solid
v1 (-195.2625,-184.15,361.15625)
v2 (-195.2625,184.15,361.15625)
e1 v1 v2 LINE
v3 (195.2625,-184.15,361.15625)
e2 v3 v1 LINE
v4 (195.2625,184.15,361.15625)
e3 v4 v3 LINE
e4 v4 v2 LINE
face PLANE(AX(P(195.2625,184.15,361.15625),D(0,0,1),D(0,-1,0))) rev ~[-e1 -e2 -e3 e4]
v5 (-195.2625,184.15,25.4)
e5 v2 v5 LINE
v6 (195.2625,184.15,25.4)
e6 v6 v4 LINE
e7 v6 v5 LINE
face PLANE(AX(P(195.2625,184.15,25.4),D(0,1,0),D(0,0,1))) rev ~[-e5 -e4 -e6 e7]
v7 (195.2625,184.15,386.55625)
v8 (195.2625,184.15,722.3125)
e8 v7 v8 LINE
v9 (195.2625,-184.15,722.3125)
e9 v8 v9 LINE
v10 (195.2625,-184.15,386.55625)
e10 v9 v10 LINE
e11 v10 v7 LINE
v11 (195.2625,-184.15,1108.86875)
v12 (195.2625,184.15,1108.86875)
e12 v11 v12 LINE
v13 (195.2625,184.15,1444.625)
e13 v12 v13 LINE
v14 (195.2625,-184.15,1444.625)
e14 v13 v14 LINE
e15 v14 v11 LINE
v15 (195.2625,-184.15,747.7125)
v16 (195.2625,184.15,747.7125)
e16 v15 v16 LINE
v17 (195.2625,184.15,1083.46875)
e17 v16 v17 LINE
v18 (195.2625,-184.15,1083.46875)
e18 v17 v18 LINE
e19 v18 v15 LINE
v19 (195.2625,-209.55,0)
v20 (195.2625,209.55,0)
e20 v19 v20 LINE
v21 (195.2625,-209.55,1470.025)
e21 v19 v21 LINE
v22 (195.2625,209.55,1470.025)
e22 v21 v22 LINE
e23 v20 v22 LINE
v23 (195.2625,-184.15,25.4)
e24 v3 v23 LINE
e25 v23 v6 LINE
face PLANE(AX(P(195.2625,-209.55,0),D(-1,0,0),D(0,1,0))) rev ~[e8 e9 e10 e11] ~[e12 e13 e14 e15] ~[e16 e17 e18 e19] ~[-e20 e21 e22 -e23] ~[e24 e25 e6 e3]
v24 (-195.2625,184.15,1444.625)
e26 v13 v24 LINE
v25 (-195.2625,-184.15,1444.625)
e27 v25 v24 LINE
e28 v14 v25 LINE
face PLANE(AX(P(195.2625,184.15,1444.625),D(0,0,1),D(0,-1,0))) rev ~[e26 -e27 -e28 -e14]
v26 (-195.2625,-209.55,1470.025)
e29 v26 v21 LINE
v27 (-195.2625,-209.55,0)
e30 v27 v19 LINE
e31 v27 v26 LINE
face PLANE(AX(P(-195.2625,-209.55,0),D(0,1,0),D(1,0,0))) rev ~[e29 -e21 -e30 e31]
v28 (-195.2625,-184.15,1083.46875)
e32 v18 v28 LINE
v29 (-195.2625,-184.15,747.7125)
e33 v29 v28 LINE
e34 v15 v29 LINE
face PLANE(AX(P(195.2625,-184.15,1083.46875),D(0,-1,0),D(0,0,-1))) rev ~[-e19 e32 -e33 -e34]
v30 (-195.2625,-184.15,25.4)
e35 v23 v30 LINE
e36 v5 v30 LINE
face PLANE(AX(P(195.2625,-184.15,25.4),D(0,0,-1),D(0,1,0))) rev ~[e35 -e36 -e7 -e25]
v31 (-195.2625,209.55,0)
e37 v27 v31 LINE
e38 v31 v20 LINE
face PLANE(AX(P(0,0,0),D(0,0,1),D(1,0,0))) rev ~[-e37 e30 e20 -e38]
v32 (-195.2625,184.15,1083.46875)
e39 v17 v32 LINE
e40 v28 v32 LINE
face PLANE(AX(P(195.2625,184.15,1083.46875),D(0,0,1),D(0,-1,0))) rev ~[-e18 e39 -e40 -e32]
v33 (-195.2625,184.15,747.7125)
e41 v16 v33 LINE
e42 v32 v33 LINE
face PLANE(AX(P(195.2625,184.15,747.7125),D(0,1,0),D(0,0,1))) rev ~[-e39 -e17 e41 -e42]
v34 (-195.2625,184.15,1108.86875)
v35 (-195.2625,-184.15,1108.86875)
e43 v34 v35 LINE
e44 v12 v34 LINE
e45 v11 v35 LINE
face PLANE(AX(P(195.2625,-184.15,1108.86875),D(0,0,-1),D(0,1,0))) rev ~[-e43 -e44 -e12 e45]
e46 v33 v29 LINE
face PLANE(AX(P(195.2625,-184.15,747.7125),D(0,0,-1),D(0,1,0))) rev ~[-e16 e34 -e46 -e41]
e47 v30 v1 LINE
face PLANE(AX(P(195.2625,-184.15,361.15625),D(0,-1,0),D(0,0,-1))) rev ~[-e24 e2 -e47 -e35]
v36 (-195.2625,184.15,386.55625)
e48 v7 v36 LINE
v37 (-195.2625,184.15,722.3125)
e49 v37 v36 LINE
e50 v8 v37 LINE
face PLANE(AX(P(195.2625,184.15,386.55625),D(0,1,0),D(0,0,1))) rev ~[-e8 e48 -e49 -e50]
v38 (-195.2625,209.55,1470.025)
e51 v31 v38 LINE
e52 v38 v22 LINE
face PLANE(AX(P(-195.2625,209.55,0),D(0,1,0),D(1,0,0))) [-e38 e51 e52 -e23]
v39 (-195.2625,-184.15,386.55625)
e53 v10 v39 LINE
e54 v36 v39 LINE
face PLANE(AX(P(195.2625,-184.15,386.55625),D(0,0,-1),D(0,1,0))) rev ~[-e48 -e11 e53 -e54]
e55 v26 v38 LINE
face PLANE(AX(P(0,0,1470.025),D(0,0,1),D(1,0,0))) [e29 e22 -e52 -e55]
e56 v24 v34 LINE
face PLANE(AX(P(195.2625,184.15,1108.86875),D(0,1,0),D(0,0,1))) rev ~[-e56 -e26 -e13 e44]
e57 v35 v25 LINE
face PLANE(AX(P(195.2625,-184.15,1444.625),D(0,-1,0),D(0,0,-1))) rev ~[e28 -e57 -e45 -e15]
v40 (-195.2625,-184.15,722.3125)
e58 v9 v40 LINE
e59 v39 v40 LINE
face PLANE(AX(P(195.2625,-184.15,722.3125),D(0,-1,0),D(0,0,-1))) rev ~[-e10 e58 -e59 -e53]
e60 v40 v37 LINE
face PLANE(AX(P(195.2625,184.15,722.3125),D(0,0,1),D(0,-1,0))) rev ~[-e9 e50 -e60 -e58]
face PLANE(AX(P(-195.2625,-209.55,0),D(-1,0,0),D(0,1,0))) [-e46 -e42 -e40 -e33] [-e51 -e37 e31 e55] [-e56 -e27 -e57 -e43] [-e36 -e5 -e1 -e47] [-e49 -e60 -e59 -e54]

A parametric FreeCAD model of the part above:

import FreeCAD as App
import Part
import Sketcher
Q = App.Units.Quantity


def add_polygon(sketch, points):
    """Adds a closed chain of lines whose ends are joined by coincident constraints."""
    first, n = sketch.GeometryCount, len(points)
    for a, b in zip(points, points[1:] + points[:1]):
        sketch.addGeometry(Part.LineSegment(App.Vector(*a, 0), App.Vector(*b, 0)), False)
    for i in range(n):
        sketch.addConstraint(Sketcher.Constraint("Coincident", first + i, 2, first + (i + 1) % n, 1))

doc = App.newDocument("Part")
body = doc.addObject("PartDesign::Body", "Body")

sketch1 = doc.addObject("Sketcher::SketchObject", "Sketch")
body.addObject(sketch1)
sketch1.AttachmentSupport = (doc.XY_Plane, [""])
sketch1.MapMode = "FlatFace"
add_polygon(sketch1, [(-195.2625, 209.55), (-195.2625, -209.55), (195.2625, -209.55), (195.2625, 209.55)])
sketch1.addConstraint(Sketcher.Constraint("Vertical", 0))
sketch1.addConstraint(Sketcher.Constraint("Horizontal", 1))
sketch1.addConstraint(Sketcher.Constraint("Vertical", 2))
sketch1.addConstraint(Sketcher.Constraint("Horizontal", 3))
sketch1.addConstraint(Sketcher.Constraint("Symmetric", 0, 2, 2, 2, -1, 1))
sketch1.addConstraint(Sketcher.Constraint("DistanceY", 0, 2, 0, 1, Q("16.5 in")))
sketch1.addConstraint(Sketcher.Constraint("DistanceX", 1, 1, 1, 2, Q("15.375 in")))
pad1 = doc.addObject("PartDesign::Pad", "Pad")
body.addObject(pad1)
pad1.Profile = sketch1
pad1.Length = Q("57.875 in")

sketch2 = doc.addObject("Sketcher::SketchObject", "Sketch001")
body.addObject(sketch2)
sketch2.AttachmentSupport = (doc.YZ_Plane, [""])
sketch2.MapMode = "FlatFace"
sketch2.AttachmentOffset = App.Placement(App.Vector(0, 0, 7.6875 * 25.4), App.Rotation())
add_polygon(sketch2, [(-184.15, 1108.86875), (184.15, 1108.86875), (184.15, 1444.625), (-184.15, 1444.625)])
add_polygon(sketch2, [(-184.15, 747.7125), (184.15, 747.7125), (184.15, 1083.46875), (-184.15, 1083.46875)])
add_polygon(sketch2, [(-184.15, 386.55625), (184.15, 386.55625), (184.15, 722.3125), (-184.15, 722.3125)])
add_polygon(sketch2, [(184.15, 25.4), (184.15, 361.15625), (-184.15, 361.15625), (-184.15, 25.4)])
sketch2.addConstraint(Sketcher.Constraint("Horizontal", 0))
sketch2.addConstraint(Sketcher.Constraint("Vertical", 1))
sketch2.addConstraint(Sketcher.Constraint("Horizontal", 2))
sketch2.addConstraint(Sketcher.Constraint("Vertical", 3))
sketch2.addConstraint(Sketcher.Constraint("Horizontal", 4))
sketch2.addConstraint(Sketcher.Constraint("Vertical", 5))
sketch2.addConstraint(Sketcher.Constraint("Horizontal", 6))
sketch2.addConstraint(Sketcher.Constraint("Vertical", 7))
sketch2.addConstraint(Sketcher.Constraint("Horizontal", 8))
sketch2.addConstraint(Sketcher.Constraint("Vertical", 9))
sketch2.addConstraint(Sketcher.Constraint("Horizontal", 10))
sketch2.addConstraint(Sketcher.Constraint("Vertical", 11))
sketch2.addConstraint(Sketcher.Constraint("Vertical", 12))
sketch2.addConstraint(Sketcher.Constraint("Horizontal", 13))
sketch2.addConstraint(Sketcher.Constraint("Vertical", 14))
sketch2.addConstraint(Sketcher.Constraint("Horizontal", 15))
sketch2.addConstraint(Sketcher.Constraint("Vertical", 1, 2, 4, 2))
sketch2.addConstraint(Sketcher.Constraint("Vertical", 3, 2, 6, 2))
sketch2.addConstraint(Sketcher.Constraint("Vertical", 5, 2, 8, 2))
sketch2.addConstraint(Sketcher.Constraint("Vertical", 7, 2, 10, 2))
sketch2.addConstraint(Sketcher.Constraint("Vertical", 9, 2, 12, 2))
sketch2.addConstraint(Sketcher.Constraint("Vertical", 11, 2, 13, 2))
sketch2.addConstraint(Sketcher.Constraint("Equal", 3, 5))
sketch2.addConstraint(Sketcher.Constraint("Equal", 7, 9))
sketch2.addConstraint(Sketcher.Constraint("Equal", 11, 12))
sketch2.addConstraint(Sketcher.Constraint("DistanceX", 0, 1, 0, 2, Q("14.5 in")))
sketch2.addConstraint(Sketcher.Constraint("DistanceY", -1, 1, 14, 2, Q("1 in")))
sketch2.addConstraint(Sketcher.Constraint("DistanceY", 5, 2, 0, 2, Q("1 in")))
sketch2.addConstraint(Sketcher.Constraint("DistanceY", 9, 2, 4, 2, Q("1 in")))
sketch2.addConstraint(Sketcher.Constraint("DistanceY", 12, 2, 8, 2, Q("1 in")))
sketch2.addConstraint(Sketcher.Constraint("DistanceY", 1, 1, 1, 2, Q("13.21875 in")))
sketch2.addConstraint(Sketcher.Constraint("DistanceX", -1, 1, 0, 2, Q("7.25 in")))
pocket1 = doc.addObject("PartDesign::Pocket", "Pocket")
body.addObject(pocket1)
pocket1.Profile = sketch2
pocket1.Type = "ThroughAll"

doc.recompute()
